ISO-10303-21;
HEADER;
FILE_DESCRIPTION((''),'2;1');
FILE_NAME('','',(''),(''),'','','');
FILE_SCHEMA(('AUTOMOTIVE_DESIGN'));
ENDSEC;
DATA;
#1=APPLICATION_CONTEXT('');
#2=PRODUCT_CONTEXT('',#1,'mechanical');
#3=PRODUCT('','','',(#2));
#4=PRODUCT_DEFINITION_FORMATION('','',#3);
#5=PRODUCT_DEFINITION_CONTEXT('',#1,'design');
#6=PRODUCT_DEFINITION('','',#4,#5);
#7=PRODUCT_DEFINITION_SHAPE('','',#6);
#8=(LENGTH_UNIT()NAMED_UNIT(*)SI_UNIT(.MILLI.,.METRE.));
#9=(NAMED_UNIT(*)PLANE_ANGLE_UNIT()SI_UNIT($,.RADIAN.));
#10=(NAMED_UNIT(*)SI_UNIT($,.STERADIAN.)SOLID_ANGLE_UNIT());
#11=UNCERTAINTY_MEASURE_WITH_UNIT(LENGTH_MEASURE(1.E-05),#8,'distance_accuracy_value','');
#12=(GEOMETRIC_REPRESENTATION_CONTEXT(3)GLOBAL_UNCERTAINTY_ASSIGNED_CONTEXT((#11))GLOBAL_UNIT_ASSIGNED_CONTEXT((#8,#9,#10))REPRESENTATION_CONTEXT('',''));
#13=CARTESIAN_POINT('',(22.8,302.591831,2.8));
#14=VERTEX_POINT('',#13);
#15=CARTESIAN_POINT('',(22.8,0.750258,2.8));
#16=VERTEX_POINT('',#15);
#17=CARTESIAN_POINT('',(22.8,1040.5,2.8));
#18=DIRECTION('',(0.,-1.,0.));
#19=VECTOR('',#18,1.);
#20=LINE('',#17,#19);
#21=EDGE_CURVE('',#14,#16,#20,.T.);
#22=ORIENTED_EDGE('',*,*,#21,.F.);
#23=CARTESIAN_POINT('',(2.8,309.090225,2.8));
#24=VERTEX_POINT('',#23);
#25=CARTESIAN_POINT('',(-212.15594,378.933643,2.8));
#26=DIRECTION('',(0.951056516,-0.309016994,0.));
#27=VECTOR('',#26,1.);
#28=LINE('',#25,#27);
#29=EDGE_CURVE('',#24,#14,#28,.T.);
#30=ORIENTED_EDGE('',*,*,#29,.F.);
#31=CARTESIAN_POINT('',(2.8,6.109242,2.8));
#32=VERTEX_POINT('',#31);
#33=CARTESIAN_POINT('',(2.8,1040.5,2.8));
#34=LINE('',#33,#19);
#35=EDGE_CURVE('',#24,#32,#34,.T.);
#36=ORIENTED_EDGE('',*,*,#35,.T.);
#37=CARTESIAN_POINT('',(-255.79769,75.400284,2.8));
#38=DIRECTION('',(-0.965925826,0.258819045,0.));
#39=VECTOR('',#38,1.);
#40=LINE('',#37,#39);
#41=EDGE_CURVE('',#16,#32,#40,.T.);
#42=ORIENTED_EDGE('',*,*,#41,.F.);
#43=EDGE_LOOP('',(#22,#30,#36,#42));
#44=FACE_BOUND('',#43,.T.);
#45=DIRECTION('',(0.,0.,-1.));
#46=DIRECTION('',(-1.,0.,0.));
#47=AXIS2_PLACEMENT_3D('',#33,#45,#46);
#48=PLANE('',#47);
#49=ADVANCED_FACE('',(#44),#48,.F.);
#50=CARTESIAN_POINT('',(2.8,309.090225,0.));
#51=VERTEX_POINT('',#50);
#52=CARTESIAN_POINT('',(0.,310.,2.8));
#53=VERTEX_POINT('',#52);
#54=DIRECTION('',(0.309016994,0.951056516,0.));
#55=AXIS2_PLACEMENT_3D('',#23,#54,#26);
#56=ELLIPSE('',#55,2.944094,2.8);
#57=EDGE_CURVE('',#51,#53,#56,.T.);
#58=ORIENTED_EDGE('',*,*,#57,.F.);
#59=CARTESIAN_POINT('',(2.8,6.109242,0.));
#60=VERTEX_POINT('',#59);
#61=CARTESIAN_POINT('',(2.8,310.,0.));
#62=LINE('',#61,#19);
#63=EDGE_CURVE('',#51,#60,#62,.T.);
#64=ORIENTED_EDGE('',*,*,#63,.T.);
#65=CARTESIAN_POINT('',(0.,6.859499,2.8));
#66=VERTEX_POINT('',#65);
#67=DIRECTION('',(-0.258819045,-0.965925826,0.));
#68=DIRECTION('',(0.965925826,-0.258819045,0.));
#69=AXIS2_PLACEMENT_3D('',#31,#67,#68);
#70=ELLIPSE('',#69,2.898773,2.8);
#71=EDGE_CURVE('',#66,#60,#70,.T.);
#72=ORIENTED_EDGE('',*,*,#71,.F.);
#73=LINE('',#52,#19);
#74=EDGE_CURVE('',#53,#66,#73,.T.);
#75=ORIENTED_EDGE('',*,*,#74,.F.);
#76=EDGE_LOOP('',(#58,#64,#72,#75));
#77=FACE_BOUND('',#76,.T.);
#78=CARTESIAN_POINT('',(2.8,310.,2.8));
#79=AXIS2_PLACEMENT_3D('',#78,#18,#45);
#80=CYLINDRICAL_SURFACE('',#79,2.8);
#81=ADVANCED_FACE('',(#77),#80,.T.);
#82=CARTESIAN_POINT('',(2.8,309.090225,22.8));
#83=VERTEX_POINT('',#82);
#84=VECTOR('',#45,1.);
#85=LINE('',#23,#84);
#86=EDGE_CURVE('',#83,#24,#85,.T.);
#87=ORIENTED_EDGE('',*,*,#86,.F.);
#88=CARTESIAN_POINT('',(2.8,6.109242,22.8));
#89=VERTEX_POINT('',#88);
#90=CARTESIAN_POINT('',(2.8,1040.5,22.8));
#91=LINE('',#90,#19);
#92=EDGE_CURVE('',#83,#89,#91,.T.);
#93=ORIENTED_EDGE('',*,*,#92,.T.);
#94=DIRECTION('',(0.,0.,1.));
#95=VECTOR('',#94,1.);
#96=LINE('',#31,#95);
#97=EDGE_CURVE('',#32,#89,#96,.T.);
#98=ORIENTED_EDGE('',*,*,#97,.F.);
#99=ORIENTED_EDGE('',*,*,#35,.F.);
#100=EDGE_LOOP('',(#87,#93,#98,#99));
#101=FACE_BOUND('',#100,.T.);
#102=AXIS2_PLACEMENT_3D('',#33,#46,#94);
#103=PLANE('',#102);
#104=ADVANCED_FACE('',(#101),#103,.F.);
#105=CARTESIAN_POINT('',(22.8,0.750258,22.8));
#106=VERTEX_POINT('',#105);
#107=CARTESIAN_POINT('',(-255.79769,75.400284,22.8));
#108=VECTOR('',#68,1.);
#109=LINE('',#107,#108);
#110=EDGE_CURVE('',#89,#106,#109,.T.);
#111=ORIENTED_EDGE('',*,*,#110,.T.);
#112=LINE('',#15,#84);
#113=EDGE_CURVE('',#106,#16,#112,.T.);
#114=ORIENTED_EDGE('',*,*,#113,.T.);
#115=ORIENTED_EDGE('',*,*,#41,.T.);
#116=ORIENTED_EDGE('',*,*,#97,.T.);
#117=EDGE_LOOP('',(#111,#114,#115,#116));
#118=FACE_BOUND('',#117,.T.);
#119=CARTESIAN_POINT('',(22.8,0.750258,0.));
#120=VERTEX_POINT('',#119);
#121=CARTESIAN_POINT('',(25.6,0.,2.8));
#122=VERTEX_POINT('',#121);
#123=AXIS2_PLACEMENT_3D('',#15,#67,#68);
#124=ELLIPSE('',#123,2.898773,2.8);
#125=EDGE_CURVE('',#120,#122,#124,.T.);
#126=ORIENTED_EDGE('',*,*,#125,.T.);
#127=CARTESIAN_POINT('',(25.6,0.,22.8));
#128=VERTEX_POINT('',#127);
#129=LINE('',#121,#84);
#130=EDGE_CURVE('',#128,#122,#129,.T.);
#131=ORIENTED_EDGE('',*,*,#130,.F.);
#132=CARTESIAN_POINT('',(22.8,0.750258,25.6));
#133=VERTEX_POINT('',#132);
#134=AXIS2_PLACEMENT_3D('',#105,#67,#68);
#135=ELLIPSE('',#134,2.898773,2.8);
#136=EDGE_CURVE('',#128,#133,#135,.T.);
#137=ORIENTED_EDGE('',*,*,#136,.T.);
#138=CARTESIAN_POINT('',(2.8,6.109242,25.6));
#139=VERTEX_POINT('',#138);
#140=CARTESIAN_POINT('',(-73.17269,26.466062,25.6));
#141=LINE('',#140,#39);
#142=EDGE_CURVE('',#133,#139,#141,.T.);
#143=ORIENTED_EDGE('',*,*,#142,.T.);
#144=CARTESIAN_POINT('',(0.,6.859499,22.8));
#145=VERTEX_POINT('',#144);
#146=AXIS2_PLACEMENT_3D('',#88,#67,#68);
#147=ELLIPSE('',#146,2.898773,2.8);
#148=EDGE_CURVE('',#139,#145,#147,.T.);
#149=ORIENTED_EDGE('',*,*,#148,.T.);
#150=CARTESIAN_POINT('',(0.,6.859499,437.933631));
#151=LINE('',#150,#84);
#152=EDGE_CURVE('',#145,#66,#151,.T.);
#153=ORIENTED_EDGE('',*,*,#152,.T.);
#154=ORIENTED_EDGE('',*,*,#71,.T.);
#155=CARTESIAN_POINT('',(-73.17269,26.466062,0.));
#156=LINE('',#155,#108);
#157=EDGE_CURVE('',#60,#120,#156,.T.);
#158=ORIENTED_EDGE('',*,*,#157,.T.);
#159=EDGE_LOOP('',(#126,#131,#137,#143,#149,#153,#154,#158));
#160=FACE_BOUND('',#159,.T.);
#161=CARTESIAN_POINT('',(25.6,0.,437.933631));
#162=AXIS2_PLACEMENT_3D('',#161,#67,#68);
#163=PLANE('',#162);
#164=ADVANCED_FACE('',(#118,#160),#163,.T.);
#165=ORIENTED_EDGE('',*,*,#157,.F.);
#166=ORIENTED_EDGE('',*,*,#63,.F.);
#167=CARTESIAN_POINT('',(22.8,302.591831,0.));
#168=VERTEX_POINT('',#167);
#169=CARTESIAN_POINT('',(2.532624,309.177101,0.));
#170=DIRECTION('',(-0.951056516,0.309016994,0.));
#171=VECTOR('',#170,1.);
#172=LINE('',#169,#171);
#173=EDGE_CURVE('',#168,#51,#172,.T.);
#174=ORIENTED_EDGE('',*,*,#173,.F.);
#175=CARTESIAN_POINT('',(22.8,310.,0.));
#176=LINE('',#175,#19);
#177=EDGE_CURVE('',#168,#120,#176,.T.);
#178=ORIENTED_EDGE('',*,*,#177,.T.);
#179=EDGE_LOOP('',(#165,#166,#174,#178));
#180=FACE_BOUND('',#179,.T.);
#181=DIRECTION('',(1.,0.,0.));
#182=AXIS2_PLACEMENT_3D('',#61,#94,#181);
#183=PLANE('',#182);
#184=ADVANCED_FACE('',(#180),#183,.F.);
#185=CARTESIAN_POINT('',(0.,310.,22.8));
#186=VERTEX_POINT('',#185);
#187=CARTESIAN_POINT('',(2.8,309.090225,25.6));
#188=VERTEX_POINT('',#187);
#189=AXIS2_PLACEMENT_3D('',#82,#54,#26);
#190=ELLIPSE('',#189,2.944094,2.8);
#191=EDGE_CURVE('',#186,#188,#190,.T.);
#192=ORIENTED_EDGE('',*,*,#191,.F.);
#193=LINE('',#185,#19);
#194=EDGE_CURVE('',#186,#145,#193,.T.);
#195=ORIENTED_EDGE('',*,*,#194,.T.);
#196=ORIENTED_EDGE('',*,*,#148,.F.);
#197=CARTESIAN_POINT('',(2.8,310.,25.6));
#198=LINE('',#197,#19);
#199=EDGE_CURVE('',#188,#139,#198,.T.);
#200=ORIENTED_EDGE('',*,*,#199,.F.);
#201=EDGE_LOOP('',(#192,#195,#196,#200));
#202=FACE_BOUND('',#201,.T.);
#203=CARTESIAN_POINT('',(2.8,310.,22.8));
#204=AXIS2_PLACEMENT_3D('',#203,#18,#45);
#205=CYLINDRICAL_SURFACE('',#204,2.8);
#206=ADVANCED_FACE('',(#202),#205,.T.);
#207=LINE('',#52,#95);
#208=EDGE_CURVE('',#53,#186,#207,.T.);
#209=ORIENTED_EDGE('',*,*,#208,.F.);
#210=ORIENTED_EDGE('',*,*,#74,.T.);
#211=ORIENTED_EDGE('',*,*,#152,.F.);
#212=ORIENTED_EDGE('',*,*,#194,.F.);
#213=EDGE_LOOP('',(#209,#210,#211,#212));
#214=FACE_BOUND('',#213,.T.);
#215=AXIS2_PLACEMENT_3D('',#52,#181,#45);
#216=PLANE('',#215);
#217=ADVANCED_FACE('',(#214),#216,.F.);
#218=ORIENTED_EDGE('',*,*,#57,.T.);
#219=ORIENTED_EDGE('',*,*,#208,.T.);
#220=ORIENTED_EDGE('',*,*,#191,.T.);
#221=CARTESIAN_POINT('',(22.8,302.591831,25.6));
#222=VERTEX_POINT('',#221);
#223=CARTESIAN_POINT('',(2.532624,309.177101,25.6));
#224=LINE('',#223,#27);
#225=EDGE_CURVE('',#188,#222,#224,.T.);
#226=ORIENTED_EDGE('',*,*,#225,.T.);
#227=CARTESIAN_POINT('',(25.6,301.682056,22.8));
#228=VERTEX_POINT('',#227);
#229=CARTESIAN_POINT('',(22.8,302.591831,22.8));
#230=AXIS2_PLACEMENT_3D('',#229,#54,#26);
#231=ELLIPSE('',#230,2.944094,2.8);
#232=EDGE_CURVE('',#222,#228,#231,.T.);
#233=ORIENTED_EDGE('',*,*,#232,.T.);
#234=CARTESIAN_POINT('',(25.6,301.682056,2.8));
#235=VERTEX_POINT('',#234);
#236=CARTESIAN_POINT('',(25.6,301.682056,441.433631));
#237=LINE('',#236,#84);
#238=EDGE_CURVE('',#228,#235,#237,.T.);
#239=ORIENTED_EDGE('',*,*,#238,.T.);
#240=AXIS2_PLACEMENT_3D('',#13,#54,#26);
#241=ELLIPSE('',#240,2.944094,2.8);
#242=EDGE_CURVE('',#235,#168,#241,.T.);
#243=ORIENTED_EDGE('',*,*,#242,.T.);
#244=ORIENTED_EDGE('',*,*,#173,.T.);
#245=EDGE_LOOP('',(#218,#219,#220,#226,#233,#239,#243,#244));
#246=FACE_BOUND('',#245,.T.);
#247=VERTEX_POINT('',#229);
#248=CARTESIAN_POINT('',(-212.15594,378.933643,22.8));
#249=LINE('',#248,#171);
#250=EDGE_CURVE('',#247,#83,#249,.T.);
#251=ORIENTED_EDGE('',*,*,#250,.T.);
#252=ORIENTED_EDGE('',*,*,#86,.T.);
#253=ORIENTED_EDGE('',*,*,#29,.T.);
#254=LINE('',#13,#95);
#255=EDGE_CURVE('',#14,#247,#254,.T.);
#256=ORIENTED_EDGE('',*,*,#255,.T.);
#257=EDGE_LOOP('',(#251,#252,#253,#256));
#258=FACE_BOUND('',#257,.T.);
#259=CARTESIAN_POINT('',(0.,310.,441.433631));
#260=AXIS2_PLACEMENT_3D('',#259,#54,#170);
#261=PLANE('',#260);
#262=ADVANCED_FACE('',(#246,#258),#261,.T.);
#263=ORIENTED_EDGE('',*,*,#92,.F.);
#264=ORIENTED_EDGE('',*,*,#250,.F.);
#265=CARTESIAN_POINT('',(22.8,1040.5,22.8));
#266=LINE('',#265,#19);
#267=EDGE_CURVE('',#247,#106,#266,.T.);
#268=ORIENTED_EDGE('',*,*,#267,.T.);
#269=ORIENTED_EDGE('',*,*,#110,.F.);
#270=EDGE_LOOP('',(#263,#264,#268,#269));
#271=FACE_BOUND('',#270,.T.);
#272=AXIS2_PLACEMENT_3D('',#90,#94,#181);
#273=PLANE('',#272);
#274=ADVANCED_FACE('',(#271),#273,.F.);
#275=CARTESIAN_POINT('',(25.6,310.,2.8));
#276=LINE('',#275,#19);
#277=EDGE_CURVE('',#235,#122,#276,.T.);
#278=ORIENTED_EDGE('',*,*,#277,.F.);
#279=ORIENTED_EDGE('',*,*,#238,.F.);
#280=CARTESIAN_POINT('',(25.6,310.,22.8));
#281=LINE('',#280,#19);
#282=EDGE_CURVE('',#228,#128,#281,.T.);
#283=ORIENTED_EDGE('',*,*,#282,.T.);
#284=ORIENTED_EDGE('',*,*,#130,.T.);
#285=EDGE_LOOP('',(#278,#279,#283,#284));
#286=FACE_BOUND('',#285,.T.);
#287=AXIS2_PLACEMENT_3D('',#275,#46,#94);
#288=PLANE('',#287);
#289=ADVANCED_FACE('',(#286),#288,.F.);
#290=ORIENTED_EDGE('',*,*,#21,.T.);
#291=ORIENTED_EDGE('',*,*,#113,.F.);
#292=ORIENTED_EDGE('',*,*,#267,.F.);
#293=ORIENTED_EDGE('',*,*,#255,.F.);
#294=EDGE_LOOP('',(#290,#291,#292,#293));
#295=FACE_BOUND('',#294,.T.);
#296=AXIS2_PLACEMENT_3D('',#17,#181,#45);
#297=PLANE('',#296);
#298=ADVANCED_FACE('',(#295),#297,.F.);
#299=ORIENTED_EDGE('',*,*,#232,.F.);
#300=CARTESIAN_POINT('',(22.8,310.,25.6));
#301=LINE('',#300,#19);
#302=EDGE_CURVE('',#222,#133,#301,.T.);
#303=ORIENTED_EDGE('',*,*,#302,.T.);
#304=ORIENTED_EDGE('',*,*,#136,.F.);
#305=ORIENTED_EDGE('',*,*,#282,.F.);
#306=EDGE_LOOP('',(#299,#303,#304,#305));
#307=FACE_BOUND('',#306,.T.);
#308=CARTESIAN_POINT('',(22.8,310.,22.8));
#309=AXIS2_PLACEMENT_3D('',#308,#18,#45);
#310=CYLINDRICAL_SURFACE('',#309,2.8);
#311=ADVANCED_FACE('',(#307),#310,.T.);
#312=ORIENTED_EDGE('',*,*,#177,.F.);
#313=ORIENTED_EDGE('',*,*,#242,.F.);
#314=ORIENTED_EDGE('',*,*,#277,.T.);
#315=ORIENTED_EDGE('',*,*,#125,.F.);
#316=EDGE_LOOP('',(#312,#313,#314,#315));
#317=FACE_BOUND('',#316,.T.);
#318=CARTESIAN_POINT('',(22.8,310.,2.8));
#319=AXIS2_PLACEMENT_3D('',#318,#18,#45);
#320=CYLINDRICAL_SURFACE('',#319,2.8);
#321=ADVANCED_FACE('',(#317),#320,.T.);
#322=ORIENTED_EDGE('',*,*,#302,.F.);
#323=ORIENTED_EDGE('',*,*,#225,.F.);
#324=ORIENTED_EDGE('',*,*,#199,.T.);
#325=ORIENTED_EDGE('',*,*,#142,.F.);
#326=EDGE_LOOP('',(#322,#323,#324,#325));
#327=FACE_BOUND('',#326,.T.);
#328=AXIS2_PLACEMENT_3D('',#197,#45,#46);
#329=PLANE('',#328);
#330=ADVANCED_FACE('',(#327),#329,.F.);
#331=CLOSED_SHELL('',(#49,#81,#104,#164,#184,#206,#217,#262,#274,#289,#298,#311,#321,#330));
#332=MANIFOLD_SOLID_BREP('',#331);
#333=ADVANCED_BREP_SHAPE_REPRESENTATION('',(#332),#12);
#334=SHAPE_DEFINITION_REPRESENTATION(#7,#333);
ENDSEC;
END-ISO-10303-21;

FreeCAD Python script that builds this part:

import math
import FreeCAD as App
import Part
import Sketcher
from FreeCAD import Vector
Q = App.Units.Quantity


def add_polygon(sketch, points):
    """Adds a closed chain of lines whose ends are joined by coincident constraints."""
    first, n = sketch.GeometryCount, len(points)
    for a, b in zip(points, points[1:] + points[:1]):
        sketch.addGeometry(Part.LineSegment(App.Vector(*a, 0), App.Vector(*b, 0)), False)
    for i in range(n):
        sketch.addConstraint(Sketcher.Constraint("Coincident", first + i, 2, first + (i + 1) % n, 1))

doc = App.newDocument("Part")
params = doc.addObject("Spreadsheet::Sheet", "Params")
for row, (alias, value) in enumerate([
    ("sketch1_radius", "2.8 mm"),
    ("sketch1_width", "20 mm"),
    ("pad1_length", "310 mm"),
    ("sketch2_width", "20 mm"),
    ("pocket1_length", "1040.5 mm"),
], start=1):
    params.set(f"A{row}", alias)
    params.set(f"B{row}", "=" + value)
    params.setAlias(f"B{row}", alias)

body = doc.addObject("PartDesign::Body", "Body")

# Sketch on XZ plane
sketch1 = body.newObject("Sketcher::SketchObject", "Sketch")
sketch1.AttachmentSupport = (doc.getObject("XZ_Plane"), [""])
sketch1.MapMode = "FlatFace"
sketch1.addGeometry([
    Part.LineSegment(Vector(22.8, 0, 0), Vector(2.8, 0, 0)),  # 0
    Part.ArcOfCircle(Part.Circle(Vector(2.8, 2.8, 0), Vector(0, 0, 1), 2.8), math.radians(-180), math.radians(-90)),  # 1
    Part.LineSegment(Vector(0, 2.8, 0), Vector(0, 22.8, 0)),  # 2
    Part.ArcOfCircle(Part.Circle(Vector(2.8, 22.8, 0), Vector(0, 0, 1), 2.8), math.radians(90), math.radians(180)),  # 3
    Part.LineSegment(Vector(2.8, 25.6, 0), Vector(22.8, 25.6, 0)),  # 4
    Part.ArcOfCircle(Part.Circle(Vector(22.8, 22.8, 0), Vector(0, 0, 1), 2.8), math.radians(0), math.radians(90)),  # 5
    Part.LineSegment(Vector(25.6, 22.8, 0), Vector(25.6, 2.8, 0)),  # 6
    Part.ArcOfCircle(Part.Circle(Vector(22.8, 2.8, 0), Vector(0, 0, 1), 2.8), math.radians(-90), math.radians(0)),  # 7
], False)
sketch1.addConstraint([
    Sketcher.Constraint("Tangent", 0, 2, 1, 2),
    Sketcher.Constraint("Tangent", 1, 1, 2, 1),
    Sketcher.Constraint("Tangent", 2, 2, 3, 2),
    Sketcher.Constraint("Tangent", 3, 1, 4, 1),
    Sketcher.Constraint("Tangent", 4, 2, 5, 2),
    Sketcher.Constraint("Tangent", 5, 1, 6, 1),
    Sketcher.Constraint("Tangent", 6, 2, 7, 2),
    Sketcher.Constraint("Tangent", 7, 1, 0, 1),
    Sketcher.Constraint("Horizontal", 0),
    Sketcher.Constraint("Vertical", 2),
    Sketcher.Constraint("Horizontal", 4),
    Sketcher.Constraint("Vertical", 6),
    Sketcher.Constraint("Equal", 1, 3),
    Sketcher.Constraint("Equal", 3, 5),
    Sketcher.Constraint("Equal", 5, 7),
    Sketcher.Constraint("PointOnObject", 0, 2, -1),
    Sketcher.Constraint("PointOnObject", 1, 1, -2),
    Sketcher.Constraint("Equal", 4, 2),
    Sketcher.Constraint("Radius", 1, 2.8),
    Sketcher.Constraint("DistanceX", 0, 2, 0, 1, 20.0),
])
sketch1.setExpression("Constraints[18]", "Params.sketch1_radius")
sketch1.setExpression("Constraints[19]", "Params.sketch1_width")
pad1 = body.newObject("PartDesign::Pad", "Pad")
pad1.Profile = sketch1
pad1.setExpression("Length", "Params.pad1_length")
pad1.Reversed = True

# Sketch on XZ plane
sketch2 = body.newObject("Sketcher::SketchObject", "Sketch001")
sketch2.AttachmentSupport = (doc.getObject("XZ_Plane"), [""])
sketch2.MapMode = "FlatFace"
add_polygon(sketch2, [(23, 3), (23, 23), (3, 23), (3, 3)])  # lines 0-3
sketch2.addConstraint([
    Sketcher.Constraint("Vertical", 0),
    Sketcher.Constraint("Horizontal", 1),
    Sketcher.Constraint("Vertical", 2),
    Sketcher.Constraint("Horizontal", 3),
    Sketcher.Constraint("Equal", 3, 0),
    Sketcher.Constraint("DistanceX", 1, 2, 1, 1, 20.0),
    Sketcher.Constraint("DistanceX", -1, 1, 0, 2, 22.8),
    Sketcher.Constraint("DistanceY", -1, 1, 0, 2, 22.8),
])
sketch2.setExpression("Constraints[9]", "Params.sketch2_width")
pocket1 = body.newObject("PartDesign::Pocket", "Pocket")
pocket1.Profile = sketch2
pocket1.setExpression("Length", "Params.pocket1_length")

# Sketch on XY plane
sketch3 = body.newObject("Sketcher::SketchObject", "Sketch002")
sketch3.AttachmentSupport = (doc.getObject("XY_Plane"), [""])
sketch3.MapMode = "FlatFace"
sketch3.AttachmentOffset = App.Placement(Vector(0, 0, 22.8), App.Rotation())
add_polygon(sketch3, [(-601, 505), (0, 310), (26, 302), (627, 106), (1017, 1309), (-211, 1708)])  # lines 0-5
sketch3.addConstraint([
    Sketcher.Constraint("PointOnObject", 0, 2, -2),
    Sketcher.Constraint("Parallel", 0, 1),
    Sketcher.Constraint("Parallel", 1, 2),
    Sketcher.Constraint("Perpendicular", 2, 3),
    Sketcher.Constraint("Perpendicular", 3, 4),
    Sketcher.Constraint("Perpendicular", 4, 5),
    Sketcher.Constraint("Equal", 0, 2),
    Sketcher.Constraint("Angle", 0, Q("-18 deg")),
    Sketcher.Constraint("DistanceY", -1, 1, 0, 2, 310.0),
    Sketcher.Constraint("DistanceX", -1, 1, 1, 2, 25.6),
    Sketcher.Constraint("DistanceY", 3, 2, 4, 2, 398.983701),
    Sketcher.Constraint("DistanceX", -1, 1, 3, 2, 1017.438541),
])
pocket2 = body.newObject("PartDesign::Pocket", "Pocket001")
pocket2.Profile = sketch3
pocket2.Type = "ThroughAll"
pocket2.Midplane = True

# Sketch on XY plane
sketch4 = body.newObject("Sketcher::SketchObject", "Sketch003")
sketch4.AttachmentSupport = (doc.getObject("XY_Plane"), [""])
sketch4.MapMode = "FlatFace"
sketch4.AttachmentOffset = App.Placement(Vector(0, 0, 22.8), App.Rotation())
add_polygon(sketch4, [(636, -164), (26, 0), (0, 7), (-611, 170), (-938, -1051), (309, -1385)])  # lines 0-5
sketch4.addConstraint([
    Sketcher.Constraint("PointOnObject", 0, 2, -1),
    Sketcher.Constraint("PointOnObject", 1, 2, -2),
    Sketcher.Constraint("Parallel", 0, 1),
    Sketcher.Constraint("Parallel", 1, 2),
    Sketcher.Constraint("Perpendicular", 2, 3),
    Sketcher.Constraint("Perpendicular", 3, 4),
    Sketcher.Constraint("Perpendicular", 4, 5),
    Sketcher.Constraint("Equal", 0, 2),
    Sketcher.Constraint("Angle", 0, Q("165 deg")),
    Sketcher.Constraint("DistanceX", -1, 1, 0, 2, 25.6),
    Sketcher.Constraint("DistanceX", 2, 2, -1, 1, 610.57183),
    Sketcher.Constraint("DistanceX", 3, 2, -1, 1, 937.776288),
])
pocket3 = body.newObject("PartDesign::Pocket", "Pocket002")
pocket3.Profile = sketch4
pocket3.Type = "ThroughAll"
pocket3.Midplane = True

doc.recompute()
